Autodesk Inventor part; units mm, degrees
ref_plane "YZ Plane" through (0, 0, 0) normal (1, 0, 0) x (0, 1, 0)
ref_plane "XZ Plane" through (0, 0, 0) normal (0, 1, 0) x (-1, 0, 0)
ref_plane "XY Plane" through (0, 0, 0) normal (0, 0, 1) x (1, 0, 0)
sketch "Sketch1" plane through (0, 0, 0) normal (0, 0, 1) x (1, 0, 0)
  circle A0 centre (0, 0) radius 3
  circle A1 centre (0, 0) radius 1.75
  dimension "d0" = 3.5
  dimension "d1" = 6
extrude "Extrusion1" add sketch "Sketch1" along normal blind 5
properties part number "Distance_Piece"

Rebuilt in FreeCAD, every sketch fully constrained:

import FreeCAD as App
import Part
import Sketcher

V = App.Vector

doc = App.newDocument("Part")
body = doc.addObject("PartDesign::Body", "Body")

# Sketch on XY plane
sketch1 = body.newObject("Sketcher::SketchObject", "Sketch")
sketch1.AttachmentSupport = (doc.getObject("XY_Plane"), [""])
sketch1.MapMode = "FlatFace"
sketch1.addGeometry(Part.Circle(V(0, 0, 0), V(0, 0, 1), 3), False)
sketch1.addGeometry(Part.Circle(V(0, 0, 0), V(0, 0, 1), 1.75), False)
sketch1.addConstraint(Sketcher.Constraint("Coincident", 0, 3, -1, 1))
sketch1.addConstraint(Sketcher.Constraint("Coincident", 1, 3, -1, 1))
sketch1.addConstraint(Sketcher.Constraint("Diameter", 0, 6.0))
sketch1.addConstraint(Sketcher.Constraint("Diameter", 1, 3.5))
pad1 = body.newObject("PartDesign::Pad", "Pad")
pad1.Profile = sketch1
pad1.Length = 5

doc.recompute()
